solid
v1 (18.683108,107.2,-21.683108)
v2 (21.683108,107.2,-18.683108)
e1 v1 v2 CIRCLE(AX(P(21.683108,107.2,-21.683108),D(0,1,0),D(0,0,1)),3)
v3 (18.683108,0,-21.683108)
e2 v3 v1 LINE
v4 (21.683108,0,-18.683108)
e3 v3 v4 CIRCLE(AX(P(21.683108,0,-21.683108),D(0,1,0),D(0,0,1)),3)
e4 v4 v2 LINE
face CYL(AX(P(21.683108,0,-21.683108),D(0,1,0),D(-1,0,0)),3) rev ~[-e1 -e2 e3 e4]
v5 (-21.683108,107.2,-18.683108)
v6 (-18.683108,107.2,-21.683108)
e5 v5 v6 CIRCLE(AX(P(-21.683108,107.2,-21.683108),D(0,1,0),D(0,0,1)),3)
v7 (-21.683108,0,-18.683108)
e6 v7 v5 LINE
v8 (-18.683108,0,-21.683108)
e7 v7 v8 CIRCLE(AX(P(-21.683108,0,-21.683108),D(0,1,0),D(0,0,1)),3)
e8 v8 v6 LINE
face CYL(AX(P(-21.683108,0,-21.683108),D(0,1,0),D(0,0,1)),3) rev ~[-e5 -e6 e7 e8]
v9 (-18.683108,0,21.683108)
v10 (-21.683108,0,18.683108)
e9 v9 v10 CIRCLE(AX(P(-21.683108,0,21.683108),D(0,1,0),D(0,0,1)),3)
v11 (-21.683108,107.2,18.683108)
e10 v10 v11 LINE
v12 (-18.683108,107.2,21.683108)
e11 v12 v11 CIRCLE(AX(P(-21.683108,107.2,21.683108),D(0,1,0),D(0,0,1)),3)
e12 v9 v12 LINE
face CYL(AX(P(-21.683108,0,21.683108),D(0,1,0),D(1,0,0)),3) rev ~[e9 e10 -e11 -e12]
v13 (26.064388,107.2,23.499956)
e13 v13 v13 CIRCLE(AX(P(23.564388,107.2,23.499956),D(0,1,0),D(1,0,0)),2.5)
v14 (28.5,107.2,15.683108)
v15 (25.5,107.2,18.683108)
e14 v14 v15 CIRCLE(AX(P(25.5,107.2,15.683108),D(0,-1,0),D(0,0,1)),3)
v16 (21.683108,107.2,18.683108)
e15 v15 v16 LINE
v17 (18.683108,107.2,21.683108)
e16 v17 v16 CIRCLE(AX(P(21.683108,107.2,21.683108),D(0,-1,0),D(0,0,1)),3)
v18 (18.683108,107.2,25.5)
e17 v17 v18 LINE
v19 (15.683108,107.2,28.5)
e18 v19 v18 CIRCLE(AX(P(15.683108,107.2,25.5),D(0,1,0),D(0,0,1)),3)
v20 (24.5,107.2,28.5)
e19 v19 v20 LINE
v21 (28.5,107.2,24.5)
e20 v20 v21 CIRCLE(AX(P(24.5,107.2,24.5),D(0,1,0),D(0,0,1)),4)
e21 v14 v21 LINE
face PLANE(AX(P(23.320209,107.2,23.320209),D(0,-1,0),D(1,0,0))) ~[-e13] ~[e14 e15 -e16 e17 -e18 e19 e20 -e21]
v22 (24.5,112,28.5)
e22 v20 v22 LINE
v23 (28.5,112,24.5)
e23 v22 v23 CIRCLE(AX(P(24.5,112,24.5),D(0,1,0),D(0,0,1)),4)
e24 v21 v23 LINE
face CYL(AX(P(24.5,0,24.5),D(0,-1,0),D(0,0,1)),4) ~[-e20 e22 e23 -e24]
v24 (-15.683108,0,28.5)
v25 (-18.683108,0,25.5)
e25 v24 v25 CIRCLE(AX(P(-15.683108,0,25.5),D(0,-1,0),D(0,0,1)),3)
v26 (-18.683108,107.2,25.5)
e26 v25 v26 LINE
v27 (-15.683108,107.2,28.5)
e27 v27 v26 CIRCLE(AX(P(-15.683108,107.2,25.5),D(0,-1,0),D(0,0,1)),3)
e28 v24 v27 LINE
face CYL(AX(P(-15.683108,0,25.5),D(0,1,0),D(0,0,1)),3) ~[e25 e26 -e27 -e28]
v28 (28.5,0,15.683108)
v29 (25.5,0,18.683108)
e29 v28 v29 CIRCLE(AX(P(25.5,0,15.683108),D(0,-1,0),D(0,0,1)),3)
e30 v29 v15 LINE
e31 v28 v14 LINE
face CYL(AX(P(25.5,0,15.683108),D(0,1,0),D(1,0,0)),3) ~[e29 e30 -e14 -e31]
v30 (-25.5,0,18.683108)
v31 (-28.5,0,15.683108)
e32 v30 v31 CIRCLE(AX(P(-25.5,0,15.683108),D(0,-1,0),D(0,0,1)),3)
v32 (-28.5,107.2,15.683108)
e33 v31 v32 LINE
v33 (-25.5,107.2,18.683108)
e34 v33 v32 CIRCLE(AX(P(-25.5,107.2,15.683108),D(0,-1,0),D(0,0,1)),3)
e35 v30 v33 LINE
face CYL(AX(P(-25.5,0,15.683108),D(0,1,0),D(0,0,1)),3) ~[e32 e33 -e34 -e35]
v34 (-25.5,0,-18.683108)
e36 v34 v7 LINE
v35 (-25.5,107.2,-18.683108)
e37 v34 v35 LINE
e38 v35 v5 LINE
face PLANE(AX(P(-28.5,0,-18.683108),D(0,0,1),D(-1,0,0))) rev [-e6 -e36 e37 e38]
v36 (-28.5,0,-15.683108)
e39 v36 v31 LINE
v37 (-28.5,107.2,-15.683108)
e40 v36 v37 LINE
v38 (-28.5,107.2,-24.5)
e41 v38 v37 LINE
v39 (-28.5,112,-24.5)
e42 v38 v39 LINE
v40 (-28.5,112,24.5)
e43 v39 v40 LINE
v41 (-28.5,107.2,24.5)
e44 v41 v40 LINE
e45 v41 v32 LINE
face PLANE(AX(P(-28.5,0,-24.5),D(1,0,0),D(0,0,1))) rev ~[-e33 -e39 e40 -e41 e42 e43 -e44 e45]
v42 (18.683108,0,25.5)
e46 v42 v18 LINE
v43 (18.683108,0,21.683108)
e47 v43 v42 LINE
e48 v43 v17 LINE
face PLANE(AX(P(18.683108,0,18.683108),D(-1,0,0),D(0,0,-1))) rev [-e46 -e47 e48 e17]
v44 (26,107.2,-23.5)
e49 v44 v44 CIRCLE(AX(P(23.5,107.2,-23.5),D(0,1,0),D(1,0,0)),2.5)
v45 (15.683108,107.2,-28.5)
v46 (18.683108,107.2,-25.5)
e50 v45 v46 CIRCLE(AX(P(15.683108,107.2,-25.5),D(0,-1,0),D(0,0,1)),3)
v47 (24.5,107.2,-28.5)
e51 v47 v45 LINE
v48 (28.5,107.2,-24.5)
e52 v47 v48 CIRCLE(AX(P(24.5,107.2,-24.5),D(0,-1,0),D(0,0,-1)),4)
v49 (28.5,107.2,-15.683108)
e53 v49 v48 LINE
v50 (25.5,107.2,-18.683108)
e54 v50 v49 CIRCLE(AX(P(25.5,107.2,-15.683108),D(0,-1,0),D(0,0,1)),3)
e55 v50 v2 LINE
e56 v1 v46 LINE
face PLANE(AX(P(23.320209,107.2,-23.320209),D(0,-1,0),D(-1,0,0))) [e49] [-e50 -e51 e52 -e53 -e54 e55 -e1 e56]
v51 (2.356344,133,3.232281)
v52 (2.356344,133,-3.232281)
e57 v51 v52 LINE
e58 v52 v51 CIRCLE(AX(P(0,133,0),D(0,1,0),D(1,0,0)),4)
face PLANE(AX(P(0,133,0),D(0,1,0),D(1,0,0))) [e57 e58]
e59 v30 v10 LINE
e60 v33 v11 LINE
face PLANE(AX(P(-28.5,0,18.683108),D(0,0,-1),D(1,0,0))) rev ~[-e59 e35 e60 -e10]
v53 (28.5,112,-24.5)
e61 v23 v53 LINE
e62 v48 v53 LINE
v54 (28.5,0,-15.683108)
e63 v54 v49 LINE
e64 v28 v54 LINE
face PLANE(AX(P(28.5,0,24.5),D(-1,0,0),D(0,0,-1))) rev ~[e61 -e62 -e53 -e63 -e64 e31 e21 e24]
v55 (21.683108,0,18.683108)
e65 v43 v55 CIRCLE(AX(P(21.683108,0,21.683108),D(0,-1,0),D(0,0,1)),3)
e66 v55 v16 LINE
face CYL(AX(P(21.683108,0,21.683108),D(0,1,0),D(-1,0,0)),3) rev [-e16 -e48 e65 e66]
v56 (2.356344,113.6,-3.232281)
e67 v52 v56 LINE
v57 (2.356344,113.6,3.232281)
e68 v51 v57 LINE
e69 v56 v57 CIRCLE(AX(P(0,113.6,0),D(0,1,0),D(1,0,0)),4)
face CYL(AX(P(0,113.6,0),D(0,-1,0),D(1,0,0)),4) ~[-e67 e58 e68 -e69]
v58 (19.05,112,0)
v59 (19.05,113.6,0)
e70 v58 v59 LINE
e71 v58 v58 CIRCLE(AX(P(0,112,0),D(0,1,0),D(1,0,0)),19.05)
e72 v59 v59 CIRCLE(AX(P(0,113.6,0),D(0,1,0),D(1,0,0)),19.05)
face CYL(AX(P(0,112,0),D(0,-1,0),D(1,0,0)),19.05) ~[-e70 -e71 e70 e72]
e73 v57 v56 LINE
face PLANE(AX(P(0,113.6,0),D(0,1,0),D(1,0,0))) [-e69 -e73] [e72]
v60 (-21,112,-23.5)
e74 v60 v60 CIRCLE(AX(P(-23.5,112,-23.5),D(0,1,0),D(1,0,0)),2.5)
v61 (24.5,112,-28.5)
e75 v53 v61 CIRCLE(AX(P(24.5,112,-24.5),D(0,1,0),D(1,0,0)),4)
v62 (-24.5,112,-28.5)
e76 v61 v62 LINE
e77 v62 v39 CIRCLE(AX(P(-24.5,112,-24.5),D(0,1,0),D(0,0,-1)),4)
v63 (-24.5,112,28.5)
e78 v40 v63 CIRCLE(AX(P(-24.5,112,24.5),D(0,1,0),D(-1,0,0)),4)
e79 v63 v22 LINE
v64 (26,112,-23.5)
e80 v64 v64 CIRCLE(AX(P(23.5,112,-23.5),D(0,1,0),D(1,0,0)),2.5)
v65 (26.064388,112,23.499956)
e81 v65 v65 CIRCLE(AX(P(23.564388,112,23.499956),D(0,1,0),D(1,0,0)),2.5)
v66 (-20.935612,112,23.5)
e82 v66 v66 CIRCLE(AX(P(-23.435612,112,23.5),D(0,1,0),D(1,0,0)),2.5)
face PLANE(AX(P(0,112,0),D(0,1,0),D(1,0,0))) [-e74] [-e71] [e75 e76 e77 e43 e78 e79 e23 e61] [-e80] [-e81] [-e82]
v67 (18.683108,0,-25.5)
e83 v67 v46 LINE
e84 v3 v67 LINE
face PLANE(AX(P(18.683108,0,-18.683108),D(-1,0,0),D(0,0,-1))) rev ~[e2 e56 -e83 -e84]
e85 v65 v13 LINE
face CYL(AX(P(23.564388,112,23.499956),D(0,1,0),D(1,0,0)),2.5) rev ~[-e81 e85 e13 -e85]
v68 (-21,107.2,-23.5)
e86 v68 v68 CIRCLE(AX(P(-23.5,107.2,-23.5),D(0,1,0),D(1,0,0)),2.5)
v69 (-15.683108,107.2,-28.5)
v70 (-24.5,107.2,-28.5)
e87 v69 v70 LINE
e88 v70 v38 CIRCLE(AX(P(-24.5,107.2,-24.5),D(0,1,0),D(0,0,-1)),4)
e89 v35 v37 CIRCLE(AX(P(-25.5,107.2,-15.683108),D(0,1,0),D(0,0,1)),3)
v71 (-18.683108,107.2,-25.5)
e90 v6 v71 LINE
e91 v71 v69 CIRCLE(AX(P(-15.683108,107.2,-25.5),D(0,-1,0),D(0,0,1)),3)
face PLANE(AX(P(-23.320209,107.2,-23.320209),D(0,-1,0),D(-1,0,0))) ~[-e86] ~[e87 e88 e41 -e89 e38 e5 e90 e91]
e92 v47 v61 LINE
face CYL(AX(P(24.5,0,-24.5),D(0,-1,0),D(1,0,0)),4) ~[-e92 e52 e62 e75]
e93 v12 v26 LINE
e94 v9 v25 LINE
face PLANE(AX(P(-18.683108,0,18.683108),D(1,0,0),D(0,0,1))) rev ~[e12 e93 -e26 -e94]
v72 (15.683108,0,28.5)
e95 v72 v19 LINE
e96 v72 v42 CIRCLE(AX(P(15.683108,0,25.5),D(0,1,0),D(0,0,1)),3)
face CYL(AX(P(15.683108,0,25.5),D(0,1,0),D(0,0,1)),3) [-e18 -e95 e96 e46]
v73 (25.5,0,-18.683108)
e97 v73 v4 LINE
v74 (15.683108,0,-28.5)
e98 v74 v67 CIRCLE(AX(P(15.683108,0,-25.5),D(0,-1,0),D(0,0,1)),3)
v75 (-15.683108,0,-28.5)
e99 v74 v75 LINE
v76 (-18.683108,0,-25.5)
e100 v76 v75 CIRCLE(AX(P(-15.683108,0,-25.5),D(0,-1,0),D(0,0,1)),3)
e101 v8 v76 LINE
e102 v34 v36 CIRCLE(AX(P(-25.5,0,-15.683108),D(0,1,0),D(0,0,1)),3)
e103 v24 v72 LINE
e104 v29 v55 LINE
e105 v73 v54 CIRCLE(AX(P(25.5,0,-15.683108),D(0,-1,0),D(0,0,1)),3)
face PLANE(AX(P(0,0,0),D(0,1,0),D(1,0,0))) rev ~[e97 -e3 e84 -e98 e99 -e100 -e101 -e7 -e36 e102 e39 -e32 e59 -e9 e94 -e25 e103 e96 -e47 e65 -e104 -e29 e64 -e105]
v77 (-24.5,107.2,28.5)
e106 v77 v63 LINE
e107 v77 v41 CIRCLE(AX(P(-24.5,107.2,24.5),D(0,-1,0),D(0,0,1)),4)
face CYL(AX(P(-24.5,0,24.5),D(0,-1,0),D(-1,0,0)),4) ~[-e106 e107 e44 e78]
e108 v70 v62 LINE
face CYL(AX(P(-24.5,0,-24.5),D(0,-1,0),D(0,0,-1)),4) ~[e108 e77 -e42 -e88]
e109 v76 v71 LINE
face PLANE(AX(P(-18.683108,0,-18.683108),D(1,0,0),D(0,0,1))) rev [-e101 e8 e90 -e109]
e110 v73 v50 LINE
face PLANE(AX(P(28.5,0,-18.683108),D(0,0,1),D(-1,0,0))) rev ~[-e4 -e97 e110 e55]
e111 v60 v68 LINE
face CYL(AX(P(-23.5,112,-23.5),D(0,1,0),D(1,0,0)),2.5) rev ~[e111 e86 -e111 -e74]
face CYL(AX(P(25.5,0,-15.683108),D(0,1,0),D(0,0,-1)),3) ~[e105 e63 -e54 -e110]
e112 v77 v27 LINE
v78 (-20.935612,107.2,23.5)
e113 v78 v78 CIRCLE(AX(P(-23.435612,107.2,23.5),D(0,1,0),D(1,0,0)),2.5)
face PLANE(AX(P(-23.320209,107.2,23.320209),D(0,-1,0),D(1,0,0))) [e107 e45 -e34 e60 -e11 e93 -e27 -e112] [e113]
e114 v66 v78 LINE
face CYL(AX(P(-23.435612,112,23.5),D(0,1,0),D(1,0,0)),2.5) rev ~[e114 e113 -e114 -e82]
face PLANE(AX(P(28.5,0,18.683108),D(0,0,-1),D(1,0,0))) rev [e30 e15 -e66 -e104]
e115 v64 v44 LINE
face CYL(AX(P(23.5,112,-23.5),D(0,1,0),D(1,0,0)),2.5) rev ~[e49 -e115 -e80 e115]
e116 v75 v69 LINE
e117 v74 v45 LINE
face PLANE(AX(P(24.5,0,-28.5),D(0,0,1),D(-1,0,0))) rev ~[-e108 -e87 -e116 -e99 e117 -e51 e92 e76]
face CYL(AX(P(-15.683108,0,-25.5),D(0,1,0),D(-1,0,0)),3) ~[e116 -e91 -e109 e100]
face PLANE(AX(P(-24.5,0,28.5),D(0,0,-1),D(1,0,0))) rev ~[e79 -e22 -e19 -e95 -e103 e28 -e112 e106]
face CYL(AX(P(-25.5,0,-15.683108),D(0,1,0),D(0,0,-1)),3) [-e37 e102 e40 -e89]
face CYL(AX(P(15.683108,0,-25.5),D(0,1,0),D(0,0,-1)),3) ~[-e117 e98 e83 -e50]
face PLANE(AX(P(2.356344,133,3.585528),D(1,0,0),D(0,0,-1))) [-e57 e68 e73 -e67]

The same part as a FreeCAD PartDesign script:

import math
import FreeCAD as App
import Part
import Sketcher

V = App.Vector


def edges_at(feature, points):
    """Names of the edges that pass closest to the given points."""
    edges = feature.Shape.Edges
    near = lambda p: min(range(len(edges)), key=lambda i: edges[i].distToShape(Part.Vertex(*p))[0])
    return sorted({f"Edge{near(p) + 1}" for p in points})


def add_polygon(sketch, points):
    """Adds a closed chain of lines whose ends are joined by coincident constraints."""
    first, n = sketch.GeometryCount, len(points)
    for a, b in zip(points, points[1:] + points[:1]):
        sketch.addGeometry(Part.LineSegment(App.Vector(*a, 0), App.Vector(*b, 0)), False)
    for i in range(n):
        sketch.addConstraint(Sketcher.Constraint("Coincident", first + i, 2, first + (i + 1) % n, 1))

doc = App.newDocument("Part")
body = doc.addObject("PartDesign::Body", "Body")

# Sketch on XZ plane
sketch1 = body.newObject("Sketcher::SketchObject", "Sketch")
sketch1.AttachmentSupport = (doc.getObject("XZ_Plane"), [""])
sketch1.MapMode = "FlatFace"
sketch1.addGeometry([
    Part.LineSegment(V(-24.5, 28.5, 0), V(24.5, 28.5, 0)),  # 0
    Part.ArcOfCircle(Part.Circle(V(24.5, 24.5, 0), V(0, 0, 1), 4), math.radians(0), math.radians(90)),  # 1
    Part.LineSegment(V(28.5, 24.5, 0), V(28.5, -24.5, 0)),  # 2
    Part.ArcOfCircle(Part.Circle(V(24.5, -24.5, 0), V(0, 0, 1), 4), math.radians(-90), math.radians(0)),  # 3
    Part.LineSegment(V(24.5, -28.5, 0), V(-24.5, -28.5, 0)),  # 4
    Part.ArcOfCircle(Part.Circle(V(-24.5, -24.5, 0), V(0, 0, 1), 4), math.radians(180), math.radians(270)),  # 5
    Part.LineSegment(V(-28.5, -24.5, 0), V(-28.5, 24.5, 0)),  # 6
    Part.ArcOfCircle(Part.Circle(V(-24.5, 24.5, 0), V(0, 0, 1), 4), math.radians(90), math.radians(180)),  # 7
], False)
sketch1.addConstraint([
    Sketcher.Constraint("Tangent", 0, 2, 1, 2),
    Sketcher.Constraint("Tangent", 1, 1, 2, 1),
    Sketcher.Constraint("Tangent", 2, 2, 3, 2),
    Sketcher.Constraint("Tangent", 3, 1, 4, 1),
    Sketcher.Constraint("Tangent", 4, 2, 5, 2),
    Sketcher.Constraint("Tangent", 5, 1, 6, 1),
    Sketcher.Constraint("Tangent", 6, 2, 7, 2),
    Sketcher.Constraint("Tangent", 7, 1, 0, 1),
    Sketcher.Constraint("Horizontal", 0),
    Sketcher.Constraint("Vertical", 2),
    Sketcher.Constraint("Horizontal", 4),
    Sketcher.Constraint("Vertical", 6),
    Sketcher.Constraint("Equal", 1, 3),
    Sketcher.Constraint("Equal", 3, 5),
    Sketcher.Constraint("Equal", 5, 7),
    Sketcher.Constraint("Symmetric", 1, 3, 5, 3, -1, 1),
    Sketcher.Constraint("Equal", 4, 2),
    Sketcher.Constraint("Radius", 1, 4.0),
    Sketcher.Constraint("DistanceX", 0, 1, 0, 2, 49.0),
])
pad1 = body.newObject("PartDesign::Pad", "Pad")
pad1.Profile = sketch1
pad1.Length = 112
pad1.Reversed = True

# Sketch on XZ plane
sketch2 = body.newObject("Sketcher::SketchObject", "Sketch001")
sketch2.AttachmentSupport = (doc.getObject("XZ_Plane"), [""])
sketch2.MapMode = "FlatFace"
sketch2.AttachmentOffset = App.Placement(V(0, 0, -112), App.Rotation())
sketch2.addGeometry(Part.Circle(V(0, 0, 0), V(0, 0, 1), 19), False)
sketch2.addConstraint([
    Sketcher.Constraint("Coincident", 0, 3, -1, 1),
    Sketcher.Constraint("Diameter", 0, 38.1),
])
pad2 = body.newObject("PartDesign::Pad", "Pad001")
pad2.Profile = sketch2
pad2.Length = 1.6
pad2.Reversed = True

# Sketch on XZ plane
sketch3 = body.newObject("Sketcher::SketchObject", "Sketch002")
sketch3.AttachmentSupport = (doc.getObject("XZ_Plane"), [""])
sketch3.MapMode = "FlatFace"
sketch3.AttachmentOffset = App.Placement(V(0, 0, -113.6), App.Rotation())
sketch3.addGeometry(Part.Circle(V(0, 0, 0), V(0, 0, 1), 4), False)
sketch3.addConstraint([
    Sketcher.Constraint("Coincident", 0, 3, -1, 1),
    Sketcher.Constraint("Diameter", 0, 8.0),
])
pad3 = body.newObject("PartDesign::Pad", "Pad002")
pad3.Profile = sketch3
pad3.Length = 19.4
pad3.Reversed = True

# Sketch on XZ plane
sketch4 = body.newObject("Sketcher::SketchObject", "Sketch003")
sketch4.AttachmentSupport = (doc.getObject("XZ_Plane"), [""])
sketch4.MapMode = "FlatFace"
sketch4.AttachmentOffset = App.Placement(V(0, 0, -133), App.Rotation())
add_polygon(sketch4, [(2, -4), (2, 4), (10, 4), (10, -4)])  # lines 0-3
sketch4.addConstraint([
    Sketcher.Constraint("Vertical", 0),
    Sketcher.Constraint("Horizontal", 1),
    Sketcher.Constraint("Vertical", 2),
    Sketcher.Constraint("Horizontal", 3),
    Sketcher.Constraint("DistanceY", 0, 1, 0, 2, 7.324949),
    Sketcher.Constraint("DistanceX", 1, 1, 1, 2, 7.896046),
    Sketcher.Constraint("DistanceY", -1, 1, 0, 2, 3.585528),
    Sketcher.Constraint("DistanceX", -1, 1, 1, 2, 10.25239),
])
pocket1 = body.newObject("PartDesign::Pocket", "Pocket")
pocket1.Profile = sketch4
pocket1.Length = 19.4
pocket1.Reversed = True

# Sketch on XZ plane
sketch5 = body.newObject("Sketcher::SketchObject", "Sketch004")
sketch5.AttachmentSupport = (doc.getObject("XZ_Plane"), [""])
sketch5.MapMode = "FlatFace"
sketch5.addGeometry([
    Part.LineSegment(V(-28.5, 24.5, 0), V(-28.5, 18.7, 0)),  # 0
    Part.LineSegment(V(-28.5, 18.7, 0), V(-18.7, 18.7, 0)),  # 1
    Part.LineSegment(V(-18.7, 18.7, 0), V(-18.7, 28.5, 0)),  # 2
    Part.LineSegment(V(-18.7, 28.5, 0), V(-24.5, 28.5, 0)),  # 3
    Part.ArcOfCircle(Part.Circle(V(-24.5, 24.5, 0), V(0, 0, 1), 4), math.radians(90), math.radians(180)),  # 4
], False)
sketch5.addConstraint([
    Sketcher.Constraint("Coincident", 0, 2, 1, 1),
    Sketcher.Constraint("Coincident", 1, 2, 2, 1),
    Sketcher.Constraint("Coincident", 2, 2, 3, 1),
    Sketcher.Constraint("Tangent", 3, 2, 4, 1),
    Sketcher.Constraint("Tangent", 4, 2, 0, 1),
    Sketcher.Constraint("Vertical", 0),
    Sketcher.Constraint("Horizontal", 1),
    Sketcher.Constraint("Vertical", 2),
    Sketcher.Constraint("Horizontal", 3),
    Sketcher.Constraint("Equal", 3, 0),
    Sketcher.Constraint("Radius", 4, 4.0),
    Sketcher.Constraint("DistanceX", 4, 3, -1, 1, 24.5),
    Sketcher.Constraint("DistanceY", -1, 1, 4, 3, 24.5),
    Sketcher.Constraint("DistanceX", 1, 1, 1, 2, 9.816892),
])
pocket2 = body.newObject("PartDesign::Pocket", "Pocket001")
pocket2.Profile = sketch5
pocket2.Length = 107.2
doc.recompute()

mirrored = body.newObject("PartDesign::Mirrored", "Mirrored")
mirrored.Originals = [pocket2]
mirrored.MirrorPlane = (doc.getObject("YZ_Plane"), [""])
body.Tip = mirrored
doc.recompute()

mirrored2 = body.newObject("PartDesign::Mirrored", "Mirrored001")
mirrored2.Originals = [pocket2]
mirrored2.MirrorPlane = (doc.getObject("XY_Plane"), [""])
body.Tip = mirrored2

# Sketch on XZ plane
sketch6 = body.newObject("Sketcher::SketchObject", "Sketch005")
sketch6.AttachmentSupport = (doc.getObject("XZ_Plane"), [""])
sketch6.MapMode = "FlatFace"
sketch6.addGeometry([
    Part.LineSegment(V(28.5, -24.5, 0), V(28.5, -18.7, 0)),  # 0
    Part.LineSegment(V(28.5, -18.7, 0), V(18.7, -18.7, 0)),  # 1
    Part.LineSegment(V(18.7, -18.7, 0), V(18.7, -28.5, 0)),  # 2
    Part.LineSegment(V(18.7, -28.5, 0), V(24.5, -28.5, 0)),  # 3
    Part.ArcOfCircle(Part.Circle(V(24.5, -24.5, 0), V(0, 0, 1), 4), math.radians(-90), math.radians(0)),  # 4
], False)
sketch6.addConstraint([
    Sketcher.Constraint("Coincident", 0, 2, 1, 1),
    Sketcher.Constraint("Coincident", 1, 2, 2, 1),
    Sketcher.Constraint("Coincident", 2, 2, 3, 1),
    Sketcher.Constraint("Tangent", 3, 2, 4, 1),
    Sketcher.Constraint("Tangent", 4, 2, 0, 1),
    Sketcher.Constraint("Vertical", 0),
    Sketcher.Constraint("Horizontal", 1),
    Sketcher.Constraint("Vertical", 2),
    Sketcher.Constraint("Horizontal", 3),
    Sketcher.Constraint("Equal", 3, 0),
    Sketcher.Constraint("Radius", 4, 4.0),
    Sketcher.Constraint("DistanceX", -1, 1, 4, 3, 24.5),
    Sketcher.Constraint("DistanceY", 4, 3, -1, 1, 24.5),
    Sketcher.Constraint("DistanceX", 1, 2, 1, 1, 9.816892),
])
pocket3 = body.newObject("PartDesign::Pocket", "Pocket002")
pocket3.Profile = sketch6
pocket3.Length = 107.2
doc.recompute()

fillet = body.newObject("PartDesign::Fillet", "Fillet")
fillet.Base = (pocket3, edges_at(pocket3, [
    (-18.683, 53.6, -18.683),
    (-18.683, 53.6, -28.5),
    (-28.5, 53.6, -18.683),
    (-18.683, 53.6, 28.5),
    (-18.683, 53.6, 18.683),
    (-28.5, 53.6, 18.683),
    (18.683, 53.6, 18.683),
    (18.683, 53.6, 28.5),
    (28.5, 53.6, 18.683),
    (18.683, 53.6, -28.5),
    (18.683, 53.6, -18.683),
    (28.5, 53.6, -18.683),
]))
fillet.Radius = 3

# Sketch on XZ plane
sketch7 = body.newObject("Sketcher::SketchObject", "Sketch006")
sketch7.AttachmentSupport = (doc.getObject("XZ_Plane"), [""])
sketch7.MapMode = "FlatFace"
sketch7.AttachmentOffset = App.Placement(V(0, 0, -112), App.Rotation())
sketch7.addGeometry([
    Part.Circle(V(23.5, -23.5, 0), V(0, 0, 1), 2.5),
    Part.Circle(V(23.6, 23.5, 0), V(0, 0, 1), 2.5),
    Part.Circle(V(-23.5, -23.5, 0), V(0, 0, 1), 2.5),
    Part.Circle(V(-23.4, 23.5, 0), V(0, 0, 1), 2.5),
], False)
sketch7.addConstraint([
    Sketcher.Constraint("Equal", 0, 1),
    Sketcher.Constraint("Equal", 1, 2),
    Sketcher.Constraint("Equal", 2, 3),
    Sketcher.Constraint("Symmetric", 0, 3, 2, 3, -2),
    Sketcher.Constraint("Diameter", 0, 5.0),
    Sketcher.Constraint("DistanceX", 2, 3, 0, 3, 47.0),
    Sketcher.Constraint("DistanceX", 3, 3, 1, 3, 47.0),
    Sketcher.Constraint("DistanceY", 2, 3, 3, 3, 47.0),
    Sketcher.Constraint("DistanceY", 0, 3, -1, 1, 23.5),
    Sketcher.Constraint("DistanceX", -1, 1, 1, 3, 23.564388),
    Sketcher.Constraint("DistanceY", -1, 1, 1, 3, 23.499956),
])
pocket4 = body.newObject("PartDesign::Pocket", "Pocket003")
pocket4.Profile = sketch7
pocket4.Length = 107.2
pocket4.Reversed = True

doc.recompute()
